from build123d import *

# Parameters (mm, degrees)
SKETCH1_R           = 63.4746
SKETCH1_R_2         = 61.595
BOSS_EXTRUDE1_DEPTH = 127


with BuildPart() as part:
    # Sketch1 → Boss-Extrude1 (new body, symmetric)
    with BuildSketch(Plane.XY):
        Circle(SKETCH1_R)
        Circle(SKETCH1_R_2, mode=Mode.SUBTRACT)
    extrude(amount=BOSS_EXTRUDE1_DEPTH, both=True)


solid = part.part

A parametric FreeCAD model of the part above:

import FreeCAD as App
import Part
import Sketcher
Q = App.Units.Quantity

doc = App.newDocument("Part")
body = doc.addObject("PartDesign::Body", "Body")

sketch1 = doc.addObject("Sketcher::SketchObject", "Sketch")
body.addObject(sketch1)
sketch1.AttachmentSupport = (doc.XY_Plane, [""])
sketch1.MapMode = "FlatFace"
sketch1.addGeometry([
    Part.Circle(App.Vector(0, 0, 0), App.Vector(0, 0, 1), 63.4746),
    Part.Circle(App.Vector(0, 0, 0), App.Vector(0, 0, 1), 61.595),
], False)
sketch1.addConstraint([
    Sketcher.Constraint("Coincident", 0, 3, -1, 1),
    Sketcher.Constraint("Coincident", 1, 3, -1, 1),
    Sketcher.Constraint("Diameter", 1, Q("4.85 in")),
    Sketcher.Constraint("Diameter", 0, Q("4.998 in")),
])
pad1 = doc.addObject("PartDesign::Pad", "Pad")
body.addObject(pad1)
pad1.Profile = sketch1
pad1.Length = Q("10 in")
pad1.Midplane = True

doc.recompute()
